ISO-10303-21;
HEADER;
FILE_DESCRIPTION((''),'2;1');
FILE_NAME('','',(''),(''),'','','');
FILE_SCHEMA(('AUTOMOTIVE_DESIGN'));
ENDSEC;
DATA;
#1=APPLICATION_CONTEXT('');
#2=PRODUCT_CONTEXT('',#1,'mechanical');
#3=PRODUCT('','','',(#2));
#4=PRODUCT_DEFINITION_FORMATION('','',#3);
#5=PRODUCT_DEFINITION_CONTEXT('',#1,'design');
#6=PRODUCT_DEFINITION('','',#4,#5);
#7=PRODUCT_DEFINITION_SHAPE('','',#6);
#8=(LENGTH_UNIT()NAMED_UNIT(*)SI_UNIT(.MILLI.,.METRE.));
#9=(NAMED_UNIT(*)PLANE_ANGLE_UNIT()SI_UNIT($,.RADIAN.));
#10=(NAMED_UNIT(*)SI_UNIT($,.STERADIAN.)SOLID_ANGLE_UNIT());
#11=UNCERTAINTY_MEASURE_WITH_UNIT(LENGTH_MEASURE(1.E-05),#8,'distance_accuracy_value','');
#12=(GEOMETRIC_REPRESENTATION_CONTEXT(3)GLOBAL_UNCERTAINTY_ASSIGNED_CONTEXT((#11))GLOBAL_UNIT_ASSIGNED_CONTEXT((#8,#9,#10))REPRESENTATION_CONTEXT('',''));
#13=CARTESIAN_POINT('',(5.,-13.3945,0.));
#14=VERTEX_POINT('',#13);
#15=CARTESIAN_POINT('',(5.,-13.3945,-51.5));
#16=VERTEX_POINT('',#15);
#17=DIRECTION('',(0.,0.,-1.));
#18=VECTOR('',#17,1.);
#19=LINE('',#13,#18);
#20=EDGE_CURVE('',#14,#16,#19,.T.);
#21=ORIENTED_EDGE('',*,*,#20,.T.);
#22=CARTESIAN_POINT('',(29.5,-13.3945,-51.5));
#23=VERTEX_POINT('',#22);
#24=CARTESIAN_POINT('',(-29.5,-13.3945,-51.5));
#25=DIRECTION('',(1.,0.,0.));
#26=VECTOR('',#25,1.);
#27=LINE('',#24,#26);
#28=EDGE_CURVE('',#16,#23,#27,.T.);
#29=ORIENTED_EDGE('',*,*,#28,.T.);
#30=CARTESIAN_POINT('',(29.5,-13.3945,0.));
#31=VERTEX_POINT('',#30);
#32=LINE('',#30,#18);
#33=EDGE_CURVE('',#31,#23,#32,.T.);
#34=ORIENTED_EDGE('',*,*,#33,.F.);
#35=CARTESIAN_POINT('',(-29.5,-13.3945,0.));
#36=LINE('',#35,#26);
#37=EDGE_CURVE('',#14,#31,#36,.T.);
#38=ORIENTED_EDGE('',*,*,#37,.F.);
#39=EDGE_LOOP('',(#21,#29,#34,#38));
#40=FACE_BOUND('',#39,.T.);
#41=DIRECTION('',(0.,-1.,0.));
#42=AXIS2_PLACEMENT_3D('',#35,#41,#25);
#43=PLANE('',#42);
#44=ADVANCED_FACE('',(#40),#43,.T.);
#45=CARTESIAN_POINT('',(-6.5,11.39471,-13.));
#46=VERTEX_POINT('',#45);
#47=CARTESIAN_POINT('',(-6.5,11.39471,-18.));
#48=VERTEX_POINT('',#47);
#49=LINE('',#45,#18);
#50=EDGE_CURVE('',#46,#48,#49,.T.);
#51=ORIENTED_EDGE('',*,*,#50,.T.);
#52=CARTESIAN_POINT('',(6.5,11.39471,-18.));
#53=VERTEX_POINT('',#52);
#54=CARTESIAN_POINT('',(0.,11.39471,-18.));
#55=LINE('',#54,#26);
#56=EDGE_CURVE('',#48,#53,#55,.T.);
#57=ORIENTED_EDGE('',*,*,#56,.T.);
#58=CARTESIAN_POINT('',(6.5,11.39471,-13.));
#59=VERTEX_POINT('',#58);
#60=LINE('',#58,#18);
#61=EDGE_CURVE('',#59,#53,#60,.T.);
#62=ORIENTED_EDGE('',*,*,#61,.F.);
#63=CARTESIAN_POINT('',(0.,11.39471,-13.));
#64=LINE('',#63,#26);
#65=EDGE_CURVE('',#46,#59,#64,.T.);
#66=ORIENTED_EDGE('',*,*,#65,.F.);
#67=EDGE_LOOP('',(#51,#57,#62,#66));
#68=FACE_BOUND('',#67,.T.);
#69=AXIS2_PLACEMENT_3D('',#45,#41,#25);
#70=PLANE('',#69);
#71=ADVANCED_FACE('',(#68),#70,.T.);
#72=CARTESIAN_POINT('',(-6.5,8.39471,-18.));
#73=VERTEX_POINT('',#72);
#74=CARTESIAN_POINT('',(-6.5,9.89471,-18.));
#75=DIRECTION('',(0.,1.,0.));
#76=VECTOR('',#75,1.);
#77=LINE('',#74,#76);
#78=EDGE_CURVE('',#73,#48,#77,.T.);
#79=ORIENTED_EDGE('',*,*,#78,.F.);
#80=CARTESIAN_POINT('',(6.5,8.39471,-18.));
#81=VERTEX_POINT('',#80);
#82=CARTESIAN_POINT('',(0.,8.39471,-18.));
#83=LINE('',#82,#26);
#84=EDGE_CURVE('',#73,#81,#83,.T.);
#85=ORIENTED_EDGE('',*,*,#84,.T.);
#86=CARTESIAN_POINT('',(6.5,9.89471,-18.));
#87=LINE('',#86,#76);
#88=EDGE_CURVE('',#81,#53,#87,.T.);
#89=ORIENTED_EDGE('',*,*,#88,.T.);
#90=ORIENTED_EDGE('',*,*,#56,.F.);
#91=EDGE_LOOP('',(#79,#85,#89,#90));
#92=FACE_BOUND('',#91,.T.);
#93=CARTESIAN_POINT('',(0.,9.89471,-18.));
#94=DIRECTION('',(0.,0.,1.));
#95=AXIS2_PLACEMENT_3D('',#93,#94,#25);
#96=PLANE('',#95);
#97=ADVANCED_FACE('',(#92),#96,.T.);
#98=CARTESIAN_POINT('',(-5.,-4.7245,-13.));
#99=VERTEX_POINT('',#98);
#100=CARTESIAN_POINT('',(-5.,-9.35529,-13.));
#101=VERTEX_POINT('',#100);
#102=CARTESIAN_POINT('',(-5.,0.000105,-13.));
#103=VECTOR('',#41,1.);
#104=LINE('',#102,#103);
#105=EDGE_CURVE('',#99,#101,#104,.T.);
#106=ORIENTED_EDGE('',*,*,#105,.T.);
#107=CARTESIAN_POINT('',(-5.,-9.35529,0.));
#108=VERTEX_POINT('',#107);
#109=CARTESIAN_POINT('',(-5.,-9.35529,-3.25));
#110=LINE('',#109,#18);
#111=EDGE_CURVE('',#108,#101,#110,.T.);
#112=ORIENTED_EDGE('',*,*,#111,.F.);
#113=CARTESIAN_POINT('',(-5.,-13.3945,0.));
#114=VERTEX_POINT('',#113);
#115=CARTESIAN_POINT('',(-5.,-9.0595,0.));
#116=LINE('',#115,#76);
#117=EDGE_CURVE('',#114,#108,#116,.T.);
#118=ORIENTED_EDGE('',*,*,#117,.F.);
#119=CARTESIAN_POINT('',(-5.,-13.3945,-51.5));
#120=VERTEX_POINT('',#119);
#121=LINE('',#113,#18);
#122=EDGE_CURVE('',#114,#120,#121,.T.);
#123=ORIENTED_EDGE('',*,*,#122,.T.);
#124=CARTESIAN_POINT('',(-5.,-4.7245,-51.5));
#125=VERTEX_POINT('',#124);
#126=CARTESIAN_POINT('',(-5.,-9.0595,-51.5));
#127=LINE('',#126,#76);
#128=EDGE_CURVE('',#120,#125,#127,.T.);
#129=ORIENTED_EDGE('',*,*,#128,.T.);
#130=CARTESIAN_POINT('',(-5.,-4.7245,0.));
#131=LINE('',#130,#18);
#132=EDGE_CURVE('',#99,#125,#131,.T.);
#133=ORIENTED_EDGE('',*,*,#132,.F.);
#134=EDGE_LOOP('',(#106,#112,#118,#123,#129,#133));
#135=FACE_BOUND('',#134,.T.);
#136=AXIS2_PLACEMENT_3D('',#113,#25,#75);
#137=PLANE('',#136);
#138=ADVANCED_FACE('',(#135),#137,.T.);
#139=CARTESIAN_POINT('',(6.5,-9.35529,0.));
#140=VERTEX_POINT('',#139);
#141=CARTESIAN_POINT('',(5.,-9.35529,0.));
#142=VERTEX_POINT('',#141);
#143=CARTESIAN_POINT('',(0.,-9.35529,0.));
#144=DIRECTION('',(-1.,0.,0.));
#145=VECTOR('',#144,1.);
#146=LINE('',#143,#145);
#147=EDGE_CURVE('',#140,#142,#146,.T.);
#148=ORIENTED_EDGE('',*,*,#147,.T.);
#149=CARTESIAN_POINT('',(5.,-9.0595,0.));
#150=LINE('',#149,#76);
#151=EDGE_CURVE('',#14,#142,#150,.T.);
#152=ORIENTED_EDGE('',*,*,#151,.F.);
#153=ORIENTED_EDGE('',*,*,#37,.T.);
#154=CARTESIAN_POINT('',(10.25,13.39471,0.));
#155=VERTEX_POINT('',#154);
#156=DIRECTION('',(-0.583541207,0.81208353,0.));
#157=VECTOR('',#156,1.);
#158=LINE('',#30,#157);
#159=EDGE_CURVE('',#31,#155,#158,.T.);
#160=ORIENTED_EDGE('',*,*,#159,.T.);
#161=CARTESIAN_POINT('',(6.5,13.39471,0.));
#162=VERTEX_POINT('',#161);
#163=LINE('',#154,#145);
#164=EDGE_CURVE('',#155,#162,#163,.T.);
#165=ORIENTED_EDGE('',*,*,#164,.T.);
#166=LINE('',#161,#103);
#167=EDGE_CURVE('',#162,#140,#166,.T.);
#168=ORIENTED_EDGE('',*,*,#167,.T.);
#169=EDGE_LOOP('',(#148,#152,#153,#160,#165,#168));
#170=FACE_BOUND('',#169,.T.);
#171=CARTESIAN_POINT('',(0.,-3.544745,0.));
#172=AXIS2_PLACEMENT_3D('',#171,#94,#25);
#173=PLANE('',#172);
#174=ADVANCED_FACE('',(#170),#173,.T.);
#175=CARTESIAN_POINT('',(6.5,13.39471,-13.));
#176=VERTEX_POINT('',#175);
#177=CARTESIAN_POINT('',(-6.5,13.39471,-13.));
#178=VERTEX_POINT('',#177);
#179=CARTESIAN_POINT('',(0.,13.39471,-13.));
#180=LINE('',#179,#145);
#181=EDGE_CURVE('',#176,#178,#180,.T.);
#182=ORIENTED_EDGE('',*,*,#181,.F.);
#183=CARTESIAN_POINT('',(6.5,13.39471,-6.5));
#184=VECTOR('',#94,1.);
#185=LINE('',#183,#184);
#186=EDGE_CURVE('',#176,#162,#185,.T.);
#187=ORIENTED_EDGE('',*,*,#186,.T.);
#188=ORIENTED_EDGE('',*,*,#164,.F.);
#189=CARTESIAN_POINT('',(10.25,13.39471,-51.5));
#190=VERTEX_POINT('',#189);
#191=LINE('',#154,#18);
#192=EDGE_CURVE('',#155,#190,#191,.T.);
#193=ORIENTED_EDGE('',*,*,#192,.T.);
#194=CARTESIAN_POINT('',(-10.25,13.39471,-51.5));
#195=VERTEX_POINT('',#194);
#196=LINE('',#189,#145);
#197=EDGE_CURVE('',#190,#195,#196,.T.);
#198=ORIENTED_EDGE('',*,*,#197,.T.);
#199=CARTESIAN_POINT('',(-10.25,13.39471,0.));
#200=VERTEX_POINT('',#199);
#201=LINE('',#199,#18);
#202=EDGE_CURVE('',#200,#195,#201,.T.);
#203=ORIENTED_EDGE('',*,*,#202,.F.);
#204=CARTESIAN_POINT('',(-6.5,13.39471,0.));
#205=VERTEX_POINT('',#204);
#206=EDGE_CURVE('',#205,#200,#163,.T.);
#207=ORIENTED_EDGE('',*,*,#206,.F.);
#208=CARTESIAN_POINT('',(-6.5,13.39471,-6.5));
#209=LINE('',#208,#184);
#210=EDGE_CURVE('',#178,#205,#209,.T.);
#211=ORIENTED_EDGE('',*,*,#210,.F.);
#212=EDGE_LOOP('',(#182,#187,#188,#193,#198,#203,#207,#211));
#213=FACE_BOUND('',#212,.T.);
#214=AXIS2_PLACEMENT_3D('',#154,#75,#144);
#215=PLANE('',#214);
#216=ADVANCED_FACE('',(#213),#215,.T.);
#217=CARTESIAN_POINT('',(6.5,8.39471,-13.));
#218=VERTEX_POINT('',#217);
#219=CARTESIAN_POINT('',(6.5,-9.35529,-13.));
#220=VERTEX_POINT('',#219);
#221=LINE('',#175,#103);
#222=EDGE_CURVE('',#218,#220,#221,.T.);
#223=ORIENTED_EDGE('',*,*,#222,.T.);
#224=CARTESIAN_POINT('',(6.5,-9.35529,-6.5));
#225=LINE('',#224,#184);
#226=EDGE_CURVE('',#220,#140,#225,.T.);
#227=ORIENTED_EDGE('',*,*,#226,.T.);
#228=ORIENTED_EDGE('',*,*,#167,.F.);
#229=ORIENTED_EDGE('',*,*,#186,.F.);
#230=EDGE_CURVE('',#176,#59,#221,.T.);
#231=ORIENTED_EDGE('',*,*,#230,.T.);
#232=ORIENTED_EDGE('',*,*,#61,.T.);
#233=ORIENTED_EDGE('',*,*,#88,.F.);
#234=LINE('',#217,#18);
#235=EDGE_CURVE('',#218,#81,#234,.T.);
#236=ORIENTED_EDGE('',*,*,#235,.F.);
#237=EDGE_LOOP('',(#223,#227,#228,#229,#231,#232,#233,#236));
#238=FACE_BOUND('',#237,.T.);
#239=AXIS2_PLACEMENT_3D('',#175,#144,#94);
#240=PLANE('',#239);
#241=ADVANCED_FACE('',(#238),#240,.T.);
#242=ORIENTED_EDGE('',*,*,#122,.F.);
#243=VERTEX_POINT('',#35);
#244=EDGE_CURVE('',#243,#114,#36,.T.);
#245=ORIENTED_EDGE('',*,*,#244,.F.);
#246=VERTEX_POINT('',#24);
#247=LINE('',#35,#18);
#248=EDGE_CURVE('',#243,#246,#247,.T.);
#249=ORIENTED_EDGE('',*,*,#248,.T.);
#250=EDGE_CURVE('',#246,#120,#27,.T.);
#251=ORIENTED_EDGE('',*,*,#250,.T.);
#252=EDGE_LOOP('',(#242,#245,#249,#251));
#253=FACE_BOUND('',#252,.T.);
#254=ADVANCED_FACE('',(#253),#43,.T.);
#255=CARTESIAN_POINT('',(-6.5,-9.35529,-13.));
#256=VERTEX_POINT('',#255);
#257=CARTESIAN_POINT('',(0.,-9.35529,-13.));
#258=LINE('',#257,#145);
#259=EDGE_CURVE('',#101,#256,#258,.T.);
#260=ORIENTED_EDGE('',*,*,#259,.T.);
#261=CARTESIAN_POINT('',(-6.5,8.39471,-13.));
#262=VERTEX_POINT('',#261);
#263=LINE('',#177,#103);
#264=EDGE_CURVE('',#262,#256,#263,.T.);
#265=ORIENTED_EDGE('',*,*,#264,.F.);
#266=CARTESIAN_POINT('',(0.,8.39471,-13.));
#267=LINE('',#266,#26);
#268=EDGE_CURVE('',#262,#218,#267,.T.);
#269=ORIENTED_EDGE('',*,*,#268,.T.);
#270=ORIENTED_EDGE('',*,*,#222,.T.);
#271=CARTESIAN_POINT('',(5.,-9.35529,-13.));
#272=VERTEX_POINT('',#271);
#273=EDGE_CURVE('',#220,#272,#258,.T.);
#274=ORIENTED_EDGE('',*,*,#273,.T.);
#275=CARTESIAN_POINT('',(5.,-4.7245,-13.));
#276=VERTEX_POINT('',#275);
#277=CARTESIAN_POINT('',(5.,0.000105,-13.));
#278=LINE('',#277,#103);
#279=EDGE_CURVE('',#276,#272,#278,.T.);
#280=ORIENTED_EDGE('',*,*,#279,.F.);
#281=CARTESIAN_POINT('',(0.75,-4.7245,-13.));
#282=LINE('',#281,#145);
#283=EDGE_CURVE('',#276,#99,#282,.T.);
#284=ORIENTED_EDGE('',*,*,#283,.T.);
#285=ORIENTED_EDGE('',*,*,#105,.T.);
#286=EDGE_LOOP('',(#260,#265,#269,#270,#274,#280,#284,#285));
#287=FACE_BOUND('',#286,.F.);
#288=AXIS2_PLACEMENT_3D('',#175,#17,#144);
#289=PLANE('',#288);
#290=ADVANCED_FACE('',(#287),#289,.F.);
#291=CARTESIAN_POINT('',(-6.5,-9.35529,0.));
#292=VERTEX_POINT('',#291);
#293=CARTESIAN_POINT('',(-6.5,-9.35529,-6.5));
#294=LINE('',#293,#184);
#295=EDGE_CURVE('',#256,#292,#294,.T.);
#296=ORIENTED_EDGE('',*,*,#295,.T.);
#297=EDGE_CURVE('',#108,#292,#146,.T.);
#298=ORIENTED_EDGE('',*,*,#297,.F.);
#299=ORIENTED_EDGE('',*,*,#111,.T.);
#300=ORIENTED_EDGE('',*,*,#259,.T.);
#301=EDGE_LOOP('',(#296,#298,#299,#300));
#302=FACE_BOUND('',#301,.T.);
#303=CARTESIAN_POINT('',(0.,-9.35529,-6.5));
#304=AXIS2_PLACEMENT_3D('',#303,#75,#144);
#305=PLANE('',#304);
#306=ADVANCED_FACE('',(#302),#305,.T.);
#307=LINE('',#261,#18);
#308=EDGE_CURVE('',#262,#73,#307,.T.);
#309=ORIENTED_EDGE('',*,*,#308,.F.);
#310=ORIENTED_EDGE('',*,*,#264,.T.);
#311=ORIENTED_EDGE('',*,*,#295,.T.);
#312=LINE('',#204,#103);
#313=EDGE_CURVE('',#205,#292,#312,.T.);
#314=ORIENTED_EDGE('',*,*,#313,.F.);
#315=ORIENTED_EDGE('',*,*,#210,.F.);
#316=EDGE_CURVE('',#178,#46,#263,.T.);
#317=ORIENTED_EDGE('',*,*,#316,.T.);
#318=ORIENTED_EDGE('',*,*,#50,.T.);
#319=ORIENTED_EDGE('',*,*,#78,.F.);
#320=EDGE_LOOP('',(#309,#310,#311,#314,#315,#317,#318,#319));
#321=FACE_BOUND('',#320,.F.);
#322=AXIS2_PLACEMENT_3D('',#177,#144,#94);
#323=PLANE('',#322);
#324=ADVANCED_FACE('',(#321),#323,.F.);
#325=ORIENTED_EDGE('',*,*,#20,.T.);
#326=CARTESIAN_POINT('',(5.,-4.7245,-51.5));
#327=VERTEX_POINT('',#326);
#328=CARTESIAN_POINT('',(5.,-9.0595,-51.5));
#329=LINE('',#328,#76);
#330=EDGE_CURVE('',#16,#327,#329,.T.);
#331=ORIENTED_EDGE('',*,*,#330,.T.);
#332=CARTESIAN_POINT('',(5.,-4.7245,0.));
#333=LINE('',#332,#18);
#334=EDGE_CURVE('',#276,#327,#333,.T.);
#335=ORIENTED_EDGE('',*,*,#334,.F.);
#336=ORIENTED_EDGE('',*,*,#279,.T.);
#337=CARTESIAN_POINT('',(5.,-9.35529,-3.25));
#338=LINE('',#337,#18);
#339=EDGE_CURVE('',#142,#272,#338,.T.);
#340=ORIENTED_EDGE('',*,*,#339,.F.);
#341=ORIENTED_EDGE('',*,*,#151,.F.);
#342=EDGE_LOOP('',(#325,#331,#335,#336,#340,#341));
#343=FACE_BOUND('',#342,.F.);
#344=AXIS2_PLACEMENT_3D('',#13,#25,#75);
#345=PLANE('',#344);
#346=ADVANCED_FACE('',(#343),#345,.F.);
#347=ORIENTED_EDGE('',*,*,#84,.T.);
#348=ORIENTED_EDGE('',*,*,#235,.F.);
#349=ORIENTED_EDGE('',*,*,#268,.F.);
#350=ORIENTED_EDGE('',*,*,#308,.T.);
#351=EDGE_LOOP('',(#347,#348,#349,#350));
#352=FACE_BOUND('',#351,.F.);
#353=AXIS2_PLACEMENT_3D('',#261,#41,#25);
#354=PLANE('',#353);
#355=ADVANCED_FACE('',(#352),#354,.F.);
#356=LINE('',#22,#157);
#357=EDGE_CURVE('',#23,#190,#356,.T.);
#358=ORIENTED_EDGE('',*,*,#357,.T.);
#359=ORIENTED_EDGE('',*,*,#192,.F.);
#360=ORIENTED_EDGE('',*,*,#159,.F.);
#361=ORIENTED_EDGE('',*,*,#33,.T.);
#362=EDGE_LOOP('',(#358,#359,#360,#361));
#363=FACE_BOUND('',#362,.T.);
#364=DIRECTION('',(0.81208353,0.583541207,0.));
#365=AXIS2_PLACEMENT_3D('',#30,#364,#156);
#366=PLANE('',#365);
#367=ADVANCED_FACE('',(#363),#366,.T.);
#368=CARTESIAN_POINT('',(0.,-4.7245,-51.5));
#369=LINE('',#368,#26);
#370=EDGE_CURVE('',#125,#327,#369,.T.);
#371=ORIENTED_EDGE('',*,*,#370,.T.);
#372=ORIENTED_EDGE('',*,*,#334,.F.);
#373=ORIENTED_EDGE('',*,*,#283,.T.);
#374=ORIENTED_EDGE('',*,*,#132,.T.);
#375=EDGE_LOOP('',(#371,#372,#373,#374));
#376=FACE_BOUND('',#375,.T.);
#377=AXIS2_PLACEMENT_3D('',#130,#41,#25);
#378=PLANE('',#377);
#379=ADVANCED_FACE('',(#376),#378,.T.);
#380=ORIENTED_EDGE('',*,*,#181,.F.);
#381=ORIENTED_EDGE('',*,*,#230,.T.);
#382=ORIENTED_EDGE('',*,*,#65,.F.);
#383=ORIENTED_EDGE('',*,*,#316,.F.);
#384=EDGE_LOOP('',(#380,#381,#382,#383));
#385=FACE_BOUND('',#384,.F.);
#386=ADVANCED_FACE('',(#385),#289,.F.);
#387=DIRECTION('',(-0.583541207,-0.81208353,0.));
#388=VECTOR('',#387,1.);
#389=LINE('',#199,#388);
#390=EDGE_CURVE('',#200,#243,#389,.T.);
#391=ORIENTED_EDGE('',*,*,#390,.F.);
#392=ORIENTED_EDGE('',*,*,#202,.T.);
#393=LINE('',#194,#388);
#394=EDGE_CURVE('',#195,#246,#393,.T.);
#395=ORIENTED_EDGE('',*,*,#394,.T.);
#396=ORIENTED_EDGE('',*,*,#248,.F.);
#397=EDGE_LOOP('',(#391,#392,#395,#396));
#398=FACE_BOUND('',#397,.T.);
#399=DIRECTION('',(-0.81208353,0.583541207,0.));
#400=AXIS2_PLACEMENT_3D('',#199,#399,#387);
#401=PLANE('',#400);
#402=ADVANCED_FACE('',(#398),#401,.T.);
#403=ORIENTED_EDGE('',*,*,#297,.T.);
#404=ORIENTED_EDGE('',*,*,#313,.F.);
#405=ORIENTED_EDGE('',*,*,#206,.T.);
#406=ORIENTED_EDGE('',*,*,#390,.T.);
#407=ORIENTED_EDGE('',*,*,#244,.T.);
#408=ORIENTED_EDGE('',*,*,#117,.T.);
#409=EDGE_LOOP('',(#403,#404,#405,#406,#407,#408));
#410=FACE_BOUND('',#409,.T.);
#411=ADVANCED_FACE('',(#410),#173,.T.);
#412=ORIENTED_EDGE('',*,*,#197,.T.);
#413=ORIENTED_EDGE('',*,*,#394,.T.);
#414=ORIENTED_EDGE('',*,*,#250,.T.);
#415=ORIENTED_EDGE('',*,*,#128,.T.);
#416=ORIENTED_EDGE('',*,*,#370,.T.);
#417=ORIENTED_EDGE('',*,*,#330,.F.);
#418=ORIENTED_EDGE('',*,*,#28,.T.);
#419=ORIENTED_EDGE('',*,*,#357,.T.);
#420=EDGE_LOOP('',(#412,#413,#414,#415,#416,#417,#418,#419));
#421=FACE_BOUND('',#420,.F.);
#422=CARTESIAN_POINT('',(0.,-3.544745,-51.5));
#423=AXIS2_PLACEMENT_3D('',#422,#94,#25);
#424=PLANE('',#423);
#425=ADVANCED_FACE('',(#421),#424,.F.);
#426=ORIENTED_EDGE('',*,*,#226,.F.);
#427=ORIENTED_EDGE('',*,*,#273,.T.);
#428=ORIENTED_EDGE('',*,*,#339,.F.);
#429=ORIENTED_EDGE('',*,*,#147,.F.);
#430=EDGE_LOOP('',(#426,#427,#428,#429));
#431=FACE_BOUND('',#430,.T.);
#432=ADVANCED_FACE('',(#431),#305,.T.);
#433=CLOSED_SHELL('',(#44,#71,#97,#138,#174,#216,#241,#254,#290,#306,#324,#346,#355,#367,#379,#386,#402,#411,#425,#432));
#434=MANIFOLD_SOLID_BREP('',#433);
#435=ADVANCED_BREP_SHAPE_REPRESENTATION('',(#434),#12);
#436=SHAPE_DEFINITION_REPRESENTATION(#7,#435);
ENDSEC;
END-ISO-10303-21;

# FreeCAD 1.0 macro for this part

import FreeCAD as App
import Part
import Sketcher
Q = App.Units.Quantity


def add_polygon(sketch, points):
    """Adds a closed chain of lines whose ends are joined by coincident constraints."""
    first, n = sketch.GeometryCount, len(points)
    for a, b in zip(points, points[1:] + points[:1]):
        sketch.addGeometry(Part.LineSegment(App.Vector(*a, 0), App.Vector(*b, 0)), False)
    for i in range(n):
        sketch.addConstraint(Sketcher.Constraint("Coincident", first + i, 2, first + (i + 1) % n, 1))

doc = App.newDocument("Part")
body = doc.addObject("PartDesign::Body", "Body")

# Sketch on XY plane
sketch1 = body.newObject("Sketcher::SketchObject", "Sketch")
sketch1.AttachmentSupport = (doc.getObject("XY_Plane"), [""])
sketch1.MapMode = "FlatFace"
add_polygon(sketch1, [(-10, 13), (-30, -13), (30, -13), (10, 13)])  # lines 0-3
sketch1.addConstraint([
    Sketcher.Constraint("Horizontal", 1),
    Sketcher.Constraint("Horizontal", 3),
    Sketcher.Constraint("Equal", 0, 2),
    Sketcher.Constraint("DistanceX", 1, 1, 1, 2, 59.0),
    Sketcher.Constraint("DistanceX", 3, 2, 3, 1, 20.5),
    Sketcher.Constraint("Angle", 0, Q("-125.7 deg")),
    Sketcher.Constraint("DistanceX", 0, 2, -1, 1, 29.5),
    Sketcher.Constraint("DistanceY", 0, 2, -1, 1, 13.3945),
])
pad1 = body.newObject("PartDesign::Pad", "Pad")
pad1.Profile = sketch1
pad1.Length = 51.5
pad1.Reversed = True

# Sketch on XZ plane
sketch2 = body.newObject("Sketcher::SketchObject", "Sketch001")
sketch2.AttachmentSupport = (doc.getObject("XZ_Plane"), [""])
sketch2.MapMode = "FlatFace"
sketch2.AttachmentOffset = App.Placement(App.Vector(0, 0, -13.39471), App.Rotation())
add_polygon(sketch2, [(6, 0), (6, -13), (-6, -13), (-6, 0)])  # lines 0-3
sketch2.addConstraint([
    Sketcher.Constraint("Vertical", 0),
    Sketcher.Constraint("Horizontal", 1),
    Sketcher.Constraint("Vertical", 2),
    Sketcher.Constraint("Horizontal", 3),
    Sketcher.Constraint("Symmetric", 2, 2, 3, 2, -1, 1),
    Sketcher.Constraint("Equal", 3, 0),
    Sketcher.Constraint("DistanceX", 1, 2, 1, 1, 13.0),
])
pocket1 = body.newObject("PartDesign::Pocket", "Pocket")
pocket1.Profile = sketch2
pocket1.Length = 22.75
pocket1.Reversed = True

# Sketch on XY plane
sketch3 = body.newObject("Sketcher::SketchObject", "Sketch002")
sketch3.AttachmentSupport = (doc.getObject("XY_Plane"), [""])
sketch3.MapMode = "FlatFace"
sketch3.AttachmentOffset = App.Placement(App.Vector(0, 0, -13), App.Rotation())
add_polygon(sketch3, [(-6.5, 11.4), (-6.5, 8.4), (6.5, 8.4), (6.5, 11.4)])  # lines 0-3
sketch3.addConstraint([
    Sketcher.Constraint("Vertical", 0),
    Sketcher.Constraint("Horizontal", 1),
    Sketcher.Constraint("Vertical", 2),
    Sketcher.Constraint("Horizontal", 3),
    Sketcher.Constraint("DistanceX", 1, 1, 1, 2, 13.0),
    Sketcher.Constraint("DistanceY", 0, 2, 0, 1, 3.0),
    Sketcher.Constraint("DistanceX", 0, 2, -1, 1, 6.5),
    Sketcher.Constraint("DistanceY", -1, 1, 0, 2, 8.39471),
])
pocket2 = body.newObject("PartDesign::Pocket", "Pocket001")
pocket2.Profile = sketch3
pocket2.Length = 5

# Sketch on XY plane
sketch4 = body.newObject("Sketcher::SketchObject", "Sketch003")
sketch4.AttachmentSupport = (doc.getObject("XY_Plane"), [""])
sketch4.MapMode = "FlatFace"
add_polygon(sketch4, [(-5, -5), (-5, -13), (5, -13), (5, -5)])  # lines 0-3
sketch4.addConstraint([
    Sketcher.Constraint("Vertical", 0),
    Sketcher.Constraint("Horizontal", 1),
    Sketcher.Constraint("Vertical", 2),
    Sketcher.Constraint("Horizontal", 3),
    Sketcher.Constraint("DistanceX", 1, 1, 1, 2, 10.0),
    Sketcher.Constraint("DistanceX", 0, 2, -1, 1, 5.0),
    Sketcher.Constraint("DistanceY", 0, 2, 0, 1, 8.67),
    Sketcher.Constraint("DistanceY", 0, 2, -1, 1, 13.3945),
])
pocket3 = body.newObject("PartDesign::Pocket", "Pocket002")
pocket3.Profile = sketch4
pocket3.Length = 51.5

doc.recompute()
